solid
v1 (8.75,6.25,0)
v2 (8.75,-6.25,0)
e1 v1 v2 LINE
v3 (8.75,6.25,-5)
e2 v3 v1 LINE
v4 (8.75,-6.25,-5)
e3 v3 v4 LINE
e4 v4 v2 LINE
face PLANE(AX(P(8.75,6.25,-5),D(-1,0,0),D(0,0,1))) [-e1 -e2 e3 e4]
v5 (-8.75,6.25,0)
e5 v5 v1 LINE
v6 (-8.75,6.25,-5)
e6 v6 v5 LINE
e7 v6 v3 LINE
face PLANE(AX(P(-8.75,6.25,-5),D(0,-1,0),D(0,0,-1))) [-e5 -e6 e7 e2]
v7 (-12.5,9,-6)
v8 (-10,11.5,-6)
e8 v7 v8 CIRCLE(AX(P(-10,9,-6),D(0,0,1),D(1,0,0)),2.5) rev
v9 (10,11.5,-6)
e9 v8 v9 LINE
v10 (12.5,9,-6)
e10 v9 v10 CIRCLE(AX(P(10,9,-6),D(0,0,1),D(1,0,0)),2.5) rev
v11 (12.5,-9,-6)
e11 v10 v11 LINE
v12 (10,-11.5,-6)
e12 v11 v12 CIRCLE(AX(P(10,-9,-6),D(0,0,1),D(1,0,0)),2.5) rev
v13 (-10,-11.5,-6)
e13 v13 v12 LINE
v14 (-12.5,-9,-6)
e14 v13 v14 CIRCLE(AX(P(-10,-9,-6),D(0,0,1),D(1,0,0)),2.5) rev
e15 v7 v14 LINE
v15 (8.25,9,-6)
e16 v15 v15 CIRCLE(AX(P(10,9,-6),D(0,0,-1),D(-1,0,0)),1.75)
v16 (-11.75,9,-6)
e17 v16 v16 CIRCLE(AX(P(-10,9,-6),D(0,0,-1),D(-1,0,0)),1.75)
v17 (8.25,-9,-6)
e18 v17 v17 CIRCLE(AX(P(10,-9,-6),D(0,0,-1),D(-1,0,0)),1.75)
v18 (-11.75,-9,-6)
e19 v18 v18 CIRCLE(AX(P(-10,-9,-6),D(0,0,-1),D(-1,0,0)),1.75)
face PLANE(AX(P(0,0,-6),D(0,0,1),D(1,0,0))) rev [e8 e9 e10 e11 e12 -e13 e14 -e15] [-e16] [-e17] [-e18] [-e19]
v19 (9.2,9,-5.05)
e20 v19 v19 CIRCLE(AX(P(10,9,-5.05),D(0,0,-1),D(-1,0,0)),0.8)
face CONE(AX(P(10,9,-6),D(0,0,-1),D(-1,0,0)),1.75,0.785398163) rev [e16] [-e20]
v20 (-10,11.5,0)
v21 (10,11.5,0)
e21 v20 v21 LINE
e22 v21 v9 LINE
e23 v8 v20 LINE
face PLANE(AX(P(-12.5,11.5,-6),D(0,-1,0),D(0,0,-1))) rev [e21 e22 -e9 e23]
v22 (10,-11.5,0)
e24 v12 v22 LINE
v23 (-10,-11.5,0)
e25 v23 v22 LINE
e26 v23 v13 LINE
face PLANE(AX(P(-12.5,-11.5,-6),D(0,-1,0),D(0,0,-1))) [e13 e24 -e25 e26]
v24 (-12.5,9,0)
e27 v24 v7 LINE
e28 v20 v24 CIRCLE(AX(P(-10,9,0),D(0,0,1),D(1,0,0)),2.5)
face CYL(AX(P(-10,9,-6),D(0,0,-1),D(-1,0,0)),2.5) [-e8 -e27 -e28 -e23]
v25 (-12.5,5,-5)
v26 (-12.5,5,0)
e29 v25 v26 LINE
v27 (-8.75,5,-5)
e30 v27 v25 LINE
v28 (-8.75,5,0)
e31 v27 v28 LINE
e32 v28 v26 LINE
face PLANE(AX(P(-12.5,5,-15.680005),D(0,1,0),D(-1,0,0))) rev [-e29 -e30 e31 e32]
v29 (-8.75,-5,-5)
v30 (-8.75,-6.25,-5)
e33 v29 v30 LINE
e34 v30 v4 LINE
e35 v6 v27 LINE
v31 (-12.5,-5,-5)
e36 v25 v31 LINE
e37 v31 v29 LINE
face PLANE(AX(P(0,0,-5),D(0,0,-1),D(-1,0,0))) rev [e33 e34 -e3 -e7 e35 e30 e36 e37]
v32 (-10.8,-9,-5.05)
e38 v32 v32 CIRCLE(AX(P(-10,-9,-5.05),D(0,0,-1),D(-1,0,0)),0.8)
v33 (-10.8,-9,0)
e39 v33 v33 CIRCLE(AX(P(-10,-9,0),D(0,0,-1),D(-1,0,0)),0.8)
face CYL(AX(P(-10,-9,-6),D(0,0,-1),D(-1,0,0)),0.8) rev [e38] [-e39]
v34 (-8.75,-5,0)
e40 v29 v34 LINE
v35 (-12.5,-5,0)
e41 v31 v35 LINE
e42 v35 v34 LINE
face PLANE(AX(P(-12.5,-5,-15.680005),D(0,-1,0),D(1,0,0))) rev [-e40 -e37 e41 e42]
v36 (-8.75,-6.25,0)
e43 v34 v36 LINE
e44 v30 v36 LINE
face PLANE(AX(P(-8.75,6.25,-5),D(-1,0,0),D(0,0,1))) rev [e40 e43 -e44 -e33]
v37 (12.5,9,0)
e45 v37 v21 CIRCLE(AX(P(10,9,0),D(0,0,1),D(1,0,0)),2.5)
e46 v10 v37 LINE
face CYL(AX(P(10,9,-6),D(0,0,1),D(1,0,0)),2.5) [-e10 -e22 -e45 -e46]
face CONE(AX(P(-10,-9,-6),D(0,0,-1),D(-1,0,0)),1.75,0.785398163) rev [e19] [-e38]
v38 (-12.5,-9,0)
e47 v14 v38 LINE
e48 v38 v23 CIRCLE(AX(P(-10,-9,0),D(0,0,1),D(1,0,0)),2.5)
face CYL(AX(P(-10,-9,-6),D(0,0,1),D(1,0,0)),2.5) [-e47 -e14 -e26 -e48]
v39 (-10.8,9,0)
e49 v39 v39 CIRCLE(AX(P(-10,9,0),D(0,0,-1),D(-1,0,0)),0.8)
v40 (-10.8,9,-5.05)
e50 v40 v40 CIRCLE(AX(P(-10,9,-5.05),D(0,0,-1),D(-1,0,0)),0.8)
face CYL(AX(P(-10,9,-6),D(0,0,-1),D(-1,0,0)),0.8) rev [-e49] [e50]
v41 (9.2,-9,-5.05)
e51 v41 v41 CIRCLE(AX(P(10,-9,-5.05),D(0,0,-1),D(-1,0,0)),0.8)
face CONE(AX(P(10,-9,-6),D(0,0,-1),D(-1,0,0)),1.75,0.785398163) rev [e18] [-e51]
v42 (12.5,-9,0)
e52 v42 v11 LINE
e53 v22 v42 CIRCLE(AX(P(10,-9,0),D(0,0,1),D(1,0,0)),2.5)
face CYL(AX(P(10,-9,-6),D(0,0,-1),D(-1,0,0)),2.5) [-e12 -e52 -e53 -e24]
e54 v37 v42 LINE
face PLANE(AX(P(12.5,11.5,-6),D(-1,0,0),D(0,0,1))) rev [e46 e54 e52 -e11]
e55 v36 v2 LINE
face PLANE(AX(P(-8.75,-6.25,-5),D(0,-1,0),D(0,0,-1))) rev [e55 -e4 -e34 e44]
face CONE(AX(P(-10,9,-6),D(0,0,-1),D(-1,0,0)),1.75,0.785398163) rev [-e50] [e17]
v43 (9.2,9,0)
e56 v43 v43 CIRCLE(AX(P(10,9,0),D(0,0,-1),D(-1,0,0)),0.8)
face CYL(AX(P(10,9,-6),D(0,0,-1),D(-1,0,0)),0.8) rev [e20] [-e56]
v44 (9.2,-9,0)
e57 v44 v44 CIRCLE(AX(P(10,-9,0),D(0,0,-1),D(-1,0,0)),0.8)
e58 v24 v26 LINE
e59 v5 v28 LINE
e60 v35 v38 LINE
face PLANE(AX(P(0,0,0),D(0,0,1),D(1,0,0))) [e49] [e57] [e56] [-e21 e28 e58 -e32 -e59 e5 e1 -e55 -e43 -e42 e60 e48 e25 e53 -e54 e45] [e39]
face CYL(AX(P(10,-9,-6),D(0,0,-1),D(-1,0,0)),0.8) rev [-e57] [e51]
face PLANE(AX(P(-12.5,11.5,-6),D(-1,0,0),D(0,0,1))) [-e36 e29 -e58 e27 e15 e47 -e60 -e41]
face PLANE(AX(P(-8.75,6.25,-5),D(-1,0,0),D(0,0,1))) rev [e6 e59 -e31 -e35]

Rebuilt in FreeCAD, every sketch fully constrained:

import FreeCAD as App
import Part
import Sketcher

V = App.Vector


def edges_at(feature, points):
    """Names of the edges that pass closest to the given points."""
    edges = feature.Shape.Edges
    near = lambda p: min(range(len(edges)), key=lambda i: edges[i].distToShape(Part.Vertex(*p))[0])
    return sorted({f"Edge{near(p) + 1}" for p in points})

doc = App.newDocument("Part")
body = doc.addObject("PartDesign::Body", "Body")

sketch1 = body.newObject("Sketcher::SketchObject", "Sketch")
sketch1.AttachmentSupport = (doc.getObject("XY_Plane"), [""])
sketch1.MapMode = "FlatFace"
sketch1.addGeometry(Part.LineSegment(V(-12, 12, 0), V(-12, -12, 0)), False)
sketch1.addGeometry(Part.LineSegment(V(-12, -12, 0), V(12, -12, 0)), False)
sketch1.addGeometry(Part.LineSegment(V(12, -12, 0), V(12, 12, 0)), False)
sketch1.addGeometry(Part.LineSegment(V(12, 12, 0), V(-12, 12, 0)), False)
sketch1.addConstraint(Sketcher.Constraint("Coincident", 0, 2, 1, 1))
sketch1.addConstraint(Sketcher.Constraint("Coincident", 1, 2, 2, 1))
sketch1.addConstraint(Sketcher.Constraint("Coincident", 2, 2, 3, 1))
sketch1.addConstraint(Sketcher.Constraint("Coincident", 3, 2, 0, 1))
sketch1.addConstraint(Sketcher.Constraint("Vertical", 0))
sketch1.addConstraint(Sketcher.Constraint("Horizontal", 1))
sketch1.addConstraint(Sketcher.Constraint("Vertical", 2))
sketch1.addConstraint(Sketcher.Constraint("Horizontal", 3))
sketch1.addConstraint(Sketcher.Constraint("Symmetric", 0, 2, 2, 2, -1, 1))
sketch1.addConstraint(Sketcher.Constraint("DistanceX", 1, 1, 1, 2, 25.0))
sketch1.addConstraint(Sketcher.Constraint("DistanceY", 0, 2, 0, 1, 23.0))
pad1 = body.newObject("PartDesign::Pad", "Pad")
pad1.Profile = sketch1
pad1.Length = 6
pad1.Reversed = True

sketch2 = body.newObject("Sketcher::SketchObject", "Sketch001")
sketch2.AttachmentSupport = (doc.getObject("XY_Plane"), [""])
sketch2.MapMode = "FlatFace"
sketch2.addGeometry(Part.LineSegment(V(-9, 6, 0), V(-9, -6, 0)), False)
sketch2.addGeometry(Part.LineSegment(V(-9, -6, 0), V(9, -6, 0)), False)
sketch2.addGeometry(Part.LineSegment(V(9, -6, 0), V(9, 6, 0)), False)
sketch2.addGeometry(Part.LineSegment(V(9, 6, 0), V(-9, 6, 0)), False)
sketch2.addConstraint(Sketcher.Constraint("Coincident", 0, 2, 1, 1))
sketch2.addConstraint(Sketcher.Constraint("Coincident", 1, 2, 2, 1))
sketch2.addConstraint(Sketcher.Constraint("Coincident", 2, 2, 3, 1))
sketch2.addConstraint(Sketcher.Constraint("Coincident", 3, 2, 0, 1))
sketch2.addConstraint(Sketcher.Constraint("Vertical", 0))
sketch2.addConstraint(Sketcher.Constraint("Horizontal", 1))
sketch2.addConstraint(Sketcher.Constraint("Vertical", 2))
sketch2.addConstraint(Sketcher.Constraint("Horizontal", 3))
sketch2.addConstraint(Sketcher.Constraint("Symmetric", 0, 2, 2, 2, -1, 1))
sketch2.addConstraint(Sketcher.Constraint("DistanceX", 1, 1, 1, 2, 17.5))
sketch2.addConstraint(Sketcher.Constraint("DistanceY", 0, 2, 0, 1, 12.5))
pocket1 = body.newObject("PartDesign::Pocket", "Pocket")
pocket1.Profile = sketch2
pocket1.Length = 5

sketch3 = body.newObject("Sketcher::SketchObject", "Sketch002")
sketch3.AttachmentSupport = (doc.getObject("XY_Plane"), [""])
sketch3.MapMode = "FlatFace"
sketch3.addGeometry(Part.LineSegment(V(-12.5, 5, 0), V(-12.5, -5, 0)), False)
sketch3.addGeometry(Part.LineSegment(V(-12.5, -5, 0), V(-8.8, -5, 0)), False)
sketch3.addGeometry(Part.LineSegment(V(-8.8, -5, 0), V(-8.8, 5, 0)), False)
sketch3.addGeometry(Part.LineSegment(V(-8.8, 5, 0), V(-12.5, 5, 0)), False)
sketch3.addConstraint(Sketcher.Constraint("Coincident", 0, 2, 1, 1))
sketch3.addConstraint(Sketcher.Constraint("Coincident", 1, 2, 2, 1))
sketch3.addConstraint(Sketcher.Constraint("Coincident", 2, 2, 3, 1))
sketch3.addConstraint(Sketcher.Constraint("Coincident", 3, 2, 0, 1))
sketch3.addConstraint(Sketcher.Constraint("Vertical", 0))
sketch3.addConstraint(Sketcher.Constraint("Horizontal", 1))
sketch3.addConstraint(Sketcher.Constraint("Vertical", 2))
sketch3.addConstraint(Sketcher.Constraint("Horizontal", 3))
sketch3.addConstraint(Sketcher.Constraint("DistanceY", 0, 2, 0, 1, 10.0))
sketch3.addConstraint(Sketcher.Constraint("DistanceY", 0, 2, -1, 1, 5.0))
sketch3.addConstraint(Sketcher.Constraint("DistanceX", 1, 1, 1, 2, 3.75))
sketch3.addConstraint(Sketcher.Constraint("DistanceX", 0, 2, -1, 1, 12.5))
pocket2 = body.newObject("PartDesign::Pocket", "Pocket001")
pocket2.Profile = sketch3
pocket2.Length = 5

sketch4 = body.newObject("Sketcher::SketchObject", "Sketch003")
sketch4.AttachmentSupport = (doc.getObject("XY_Plane"), [""])
sketch4.MapMode = "FlatFace"
sketch4.AttachmentOffset = App.Placement(V(0, 0, -6), App.Rotation())
sketch4.addGeometry(Part.Circle(V(10, 9, 0), V(0, 0, 1), 0.8), False)
sketch4.addGeometry(Part.Circle(V(-10, 9, 0), V(0, 0, 1), 0.8), False)
sketch4.addGeometry(Part.Circle(V(-10, -9, 0), V(0, 0, 1), 0.8), False)
sketch4.addGeometry(Part.Circle(V(10, -9, 0), V(0, 0, 1), 0.8), False)
sketch4.addConstraint(Sketcher.Constraint("Equal", 0, 1))
sketch4.addConstraint(Sketcher.Constraint("Equal", 1, 2))
sketch4.addConstraint(Sketcher.Constraint("Equal", 2, 3))
sketch4.addConstraint(Sketcher.Constraint("Symmetric", 0, 3, 2, 3, -1, 1))
sketch4.addConstraint(Sketcher.Constraint("Symmetric", 1, 3, 3, 3, -1, 1))
sketch4.addConstraint(Sketcher.Constraint("Symmetric", 0, 3, 1, 3, -2))
sketch4.addConstraint(Sketcher.Constraint("Diameter", 0, 1.6))
sketch4.addConstraint(Sketcher.Constraint("DistanceX", -1, 1, 0, 3, 10.0))
sketch4.addConstraint(Sketcher.Constraint("DistanceY", -1, 1, 0, 3, 9.0))
doc.recompute()
hole = body.newObject("PartDesign::Hole", "Hole")
hole.Profile = sketch4
hole.ThreadType = "None"
hole.Diameter = 1.6
hole.DepthType = "ThroughAll"
hole.HoleCutType = "Countersink"
hole.HoleCutDiameter = 3.5
hole.HoleCutCountersinkAngle = 90
hole.Reversed = True
doc.recompute()

fillet = body.newObject("PartDesign::Fillet", "Fillet")
fillet.Base = (hole, edges_at(hole, [
    (-12.5, 11.5, -3),
    (12.5, 11.5, -3),
    (12.5, -11.5, -3),
    (-12.5, -11.5, -3),
]))
fillet.Radius = 2.5

doc.recompute()
